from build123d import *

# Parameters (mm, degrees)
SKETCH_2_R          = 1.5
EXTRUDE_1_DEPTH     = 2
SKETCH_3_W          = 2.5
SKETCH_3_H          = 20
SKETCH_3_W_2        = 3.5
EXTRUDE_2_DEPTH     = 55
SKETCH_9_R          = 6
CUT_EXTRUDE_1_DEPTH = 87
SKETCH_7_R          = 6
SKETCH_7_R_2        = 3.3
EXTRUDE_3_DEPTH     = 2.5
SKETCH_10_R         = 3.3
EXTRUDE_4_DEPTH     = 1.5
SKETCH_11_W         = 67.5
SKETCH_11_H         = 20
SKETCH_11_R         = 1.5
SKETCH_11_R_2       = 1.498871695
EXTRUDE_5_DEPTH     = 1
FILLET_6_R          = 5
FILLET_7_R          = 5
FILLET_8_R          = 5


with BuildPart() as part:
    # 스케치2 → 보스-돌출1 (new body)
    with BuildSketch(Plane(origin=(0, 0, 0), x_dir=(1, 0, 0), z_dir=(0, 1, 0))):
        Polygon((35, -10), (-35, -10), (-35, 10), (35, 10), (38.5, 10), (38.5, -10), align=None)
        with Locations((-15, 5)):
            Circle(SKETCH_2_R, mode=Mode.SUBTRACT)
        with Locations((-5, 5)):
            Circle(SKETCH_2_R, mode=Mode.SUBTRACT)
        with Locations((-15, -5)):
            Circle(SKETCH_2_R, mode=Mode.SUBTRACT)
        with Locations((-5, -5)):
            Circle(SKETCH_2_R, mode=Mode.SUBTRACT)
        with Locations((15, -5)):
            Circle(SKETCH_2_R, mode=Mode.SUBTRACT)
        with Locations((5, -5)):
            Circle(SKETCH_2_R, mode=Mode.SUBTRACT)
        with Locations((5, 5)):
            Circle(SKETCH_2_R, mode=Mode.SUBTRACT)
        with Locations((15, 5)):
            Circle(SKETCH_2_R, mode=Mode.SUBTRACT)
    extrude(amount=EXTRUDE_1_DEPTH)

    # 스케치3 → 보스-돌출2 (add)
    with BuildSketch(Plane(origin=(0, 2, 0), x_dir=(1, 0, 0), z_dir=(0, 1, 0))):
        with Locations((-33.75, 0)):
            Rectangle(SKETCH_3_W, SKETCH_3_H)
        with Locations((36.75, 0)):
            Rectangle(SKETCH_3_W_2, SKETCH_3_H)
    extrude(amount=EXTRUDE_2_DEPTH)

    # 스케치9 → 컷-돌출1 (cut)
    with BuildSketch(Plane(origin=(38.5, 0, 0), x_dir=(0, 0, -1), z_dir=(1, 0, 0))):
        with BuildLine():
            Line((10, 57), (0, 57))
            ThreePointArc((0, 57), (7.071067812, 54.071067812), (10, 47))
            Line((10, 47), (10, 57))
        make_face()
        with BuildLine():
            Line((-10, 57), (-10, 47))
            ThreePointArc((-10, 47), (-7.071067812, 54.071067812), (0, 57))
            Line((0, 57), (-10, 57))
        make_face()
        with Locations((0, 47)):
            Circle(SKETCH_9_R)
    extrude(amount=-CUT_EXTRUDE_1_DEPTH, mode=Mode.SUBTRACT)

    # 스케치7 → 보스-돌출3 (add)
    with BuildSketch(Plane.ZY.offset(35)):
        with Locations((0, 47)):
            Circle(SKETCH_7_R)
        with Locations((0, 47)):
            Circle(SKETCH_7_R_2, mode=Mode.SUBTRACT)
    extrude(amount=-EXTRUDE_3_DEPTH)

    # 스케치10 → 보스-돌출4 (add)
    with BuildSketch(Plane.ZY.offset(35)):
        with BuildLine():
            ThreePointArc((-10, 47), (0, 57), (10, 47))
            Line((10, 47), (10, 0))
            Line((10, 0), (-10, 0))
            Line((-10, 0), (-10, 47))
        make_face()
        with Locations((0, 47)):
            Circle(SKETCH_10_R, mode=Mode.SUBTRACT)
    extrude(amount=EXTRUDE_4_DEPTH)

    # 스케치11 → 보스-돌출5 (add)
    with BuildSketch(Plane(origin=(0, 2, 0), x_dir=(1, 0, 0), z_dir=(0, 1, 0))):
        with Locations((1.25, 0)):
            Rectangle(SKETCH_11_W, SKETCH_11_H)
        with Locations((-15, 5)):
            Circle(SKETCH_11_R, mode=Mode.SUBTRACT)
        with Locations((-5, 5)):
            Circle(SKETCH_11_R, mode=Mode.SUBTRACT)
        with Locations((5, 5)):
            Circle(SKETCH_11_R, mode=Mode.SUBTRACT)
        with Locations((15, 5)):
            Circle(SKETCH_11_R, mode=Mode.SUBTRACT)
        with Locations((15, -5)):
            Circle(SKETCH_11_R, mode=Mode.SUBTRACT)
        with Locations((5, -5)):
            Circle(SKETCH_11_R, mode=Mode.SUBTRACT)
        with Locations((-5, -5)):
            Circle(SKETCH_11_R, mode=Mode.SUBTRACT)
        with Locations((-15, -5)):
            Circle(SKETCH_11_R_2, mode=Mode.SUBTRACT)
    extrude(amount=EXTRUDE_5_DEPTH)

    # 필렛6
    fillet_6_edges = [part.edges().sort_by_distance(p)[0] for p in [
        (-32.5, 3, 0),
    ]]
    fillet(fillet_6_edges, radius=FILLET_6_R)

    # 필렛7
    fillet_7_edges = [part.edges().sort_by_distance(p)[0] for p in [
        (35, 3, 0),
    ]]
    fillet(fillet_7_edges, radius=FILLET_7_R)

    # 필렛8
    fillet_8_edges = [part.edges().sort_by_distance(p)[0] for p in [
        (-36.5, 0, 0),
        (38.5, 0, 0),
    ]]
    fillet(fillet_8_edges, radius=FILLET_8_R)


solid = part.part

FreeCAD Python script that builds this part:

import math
import FreeCAD as App
import Part
import Sketcher
Q = App.Units.Quantity


def edges_at(feature, points):
    """Names of the edges that pass closest to the given points."""
    edges = feature.Shape.Edges
    near = lambda p: min(range(len(edges)), key=lambda i: edges[i].distToShape(Part.Vertex(*p))[0])
    return sorted({f"Edge{near(p) + 1}" for p in points})


def add_polygon(sketch, points):
    """Adds a closed chain of lines whose ends are joined by coincident constraints."""
    first, n = sketch.GeometryCount, len(points)
    for a, b in zip(points, points[1:] + points[:1]):
        sketch.addGeometry(Part.LineSegment(App.Vector(*a, 0), App.Vector(*b, 0)), False)
    for i in range(n):
        sketch.addConstraint(Sketcher.Constraint("Coincident", first + i, 2, first + (i + 1) % n, 1))

doc = App.newDocument("Part")
body = doc.addObject("PartDesign::Body", "Body")

# Sketch on XZ plane
sketch1 = body.newObject("Sketcher::SketchObject", "Sketch")
sketch1.AttachmentSupport = (doc.getObject("XZ_Plane"), [""])
sketch1.MapMode = "FlatFace"
add_polygon(sketch1, [(-35, 10), (38.5, 10), (38.5, -10), (-35, -10)])  # lines 0-3
sketch1.addGeometry(Part.Circle(App.Vector(15, 5, 0), App.Vector(0, 0, 1), 1.5), False)  # 4
sketch1.addGeometry(Part.Circle(App.Vector(5, 5, 0), App.Vector(0, 0, 1), 1.5), False)  # 5
sketch1.addGeometry(Part.Circle(App.Vector(-5, 5, 0), App.Vector(0, 0, 1), 1.5), False)  # 6
sketch1.addGeometry(Part.Circle(App.Vector(-15, 5, 0), App.Vector(0, 0, 1), 1.5), False)  # 7
sketch1.addGeometry(Part.Circle(App.Vector(15, -5, 0), App.Vector(0, 0, 1), 1.5), False)  # 8
sketch1.addGeometry(Part.Circle(App.Vector(5, -5, 0), App.Vector(0, 0, 1), 1.5), False)  # 9
sketch1.addGeometry(Part.Circle(App.Vector(-5, -5, 0), App.Vector(0, 0, 1), 1.5), False)  # 10
sketch1.addGeometry(Part.Circle(App.Vector(-15, -5, 0), App.Vector(0, 0, 1), 1.5), False)  # 11
sketch1.addConstraint(Sketcher.Constraint("Horizontal", 0))
sketch1.addConstraint(Sketcher.Constraint("Vertical", 1))
sketch1.addConstraint(Sketcher.Constraint("Horizontal", 2))
sketch1.addConstraint(Sketcher.Constraint("Vertical", 3))
sketch1.addConstraint(Sketcher.Constraint("Equal", 4, 5))
sketch1.addConstraint(Sketcher.Constraint("Equal", 5, 6))
sketch1.addConstraint(Sketcher.Constraint("Equal", 6, 7))
sketch1.addConstraint(Sketcher.Constraint("Equal", 7, 8))
sketch1.addConstraint(Sketcher.Constraint("Equal", 8, 9))
sketch1.addConstraint(Sketcher.Constraint("Equal", 9, 10))
sketch1.addConstraint(Sketcher.Constraint("Equal", 10, 11))
sketch1.addConstraint(Sketcher.Constraint("Symmetric", 7, 3, 8, 3, -1, 1))
sketch1.addConstraint(Sketcher.Constraint("Symmetric", 6, 3, 9, 3, -1, 1))
sketch1.addConstraint(Sketcher.Constraint("Symmetric", 5, 3, 10, 3, -1, 1))
sketch1.addConstraint(Sketcher.Constraint("Symmetric", 4, 3, 11, 3, -1, 1))
sketch1.addConstraint(Sketcher.Constraint("Symmetric", 5, 3, 6, 3, -2))
sketch1.addConstraint(Sketcher.Constraint("Symmetric", 4, 3, 7, 3, -2))
sketch1.addConstraint(Sketcher.Constraint("Horizontal", 4, 3, 5, 3))
sketch1.addConstraint(Sketcher.Constraint("Diameter", 4, Q("3 mm")))
sketch1.addConstraint(Sketcher.Constraint("DistanceY", 1, 2, 1, 1, Q("20 mm")))
sketch1.addConstraint(Sketcher.Constraint("DistanceX", 0, 1, 0, 2, Q("73.5 mm")))
sketch1.addConstraint(Sketcher.Constraint("DistanceX", -1, 1, 4, 3, Q("15 mm")))
sketch1.addConstraint(Sketcher.Constraint("DistanceY", -1, 1, 4, 3, Q("5 mm")))
sketch1.addConstraint(Sketcher.Constraint("DistanceX", -1, 1, 5, 3, Q("5 mm")))
sketch1.addConstraint(Sketcher.Constraint("DistanceY", -1, 1, 0, 2, Q("10 mm")))
sketch1.addConstraint(Sketcher.Constraint("DistanceX", 2, 2, -1, 1, Q("35 mm")))
pad1 = body.newObject("PartDesign::Pad", "Pad")
pad1.Profile = sketch1
pad1.Length = 2
pad1.Reversed = True

# Sketch on XZ plane
sketch2 = body.newObject("Sketcher::SketchObject", "Sketch001")
sketch2.AttachmentSupport = (doc.getObject("XZ_Plane"), [""])
sketch2.MapMode = "FlatFace"
sketch2.AttachmentOffset = App.Placement(App.Vector(0, 0, -2), App.Rotation())
add_polygon(sketch2, [(-35, -10), (-35, 10), (-32.5, 10), (-32.5, -10)])  # lines 0-3
add_polygon(sketch2, [(35, -10), (35, 10), (38.5, 10), (38.5, -10)])  # lines 4-7
sketch2.addConstraint(Sketcher.Constraint("Vertical", 0))
sketch2.addConstraint(Sketcher.Constraint("Horizontal", 1))
sketch2.addConstraint(Sketcher.Constraint("Vertical", 2))
sketch2.addConstraint(Sketcher.Constraint("Horizontal", 3))
sketch2.addConstraint(Sketcher.Constraint("Vertical", 4))
sketch2.addConstraint(Sketcher.Constraint("Horizontal", 5))
sketch2.addConstraint(Sketcher.Constraint("Vertical", 6))
sketch2.addConstraint(Sketcher.Constraint("Horizontal", 7))
sketch2.addConstraint(Sketcher.Constraint("Symmetric", 3, 2, 4, 2, -1, 1))
sketch2.addConstraint(Sketcher.Constraint("Horizontal", 1, 2, 4, 2))
sketch2.addConstraint(Sketcher.Constraint("Horizontal", 3, 2, 6, 2))
sketch2.addConstraint(Sketcher.Constraint("DistanceY", 0, 1, 0, 2, Q("20 mm")))
sketch2.addConstraint(Sketcher.Constraint("DistanceX", 1, 1, 1, 2, Q("2.5 mm")))
sketch2.addConstraint(Sketcher.Constraint("DistanceX", 5, 1, 5, 2, Q("3.5 mm")))
sketch2.addConstraint(Sketcher.Constraint("DistanceX", 0, 2, -1, 1, Q("35 mm")))
pad2 = body.newObject("PartDesign::Pad", "Pad001")
pad2.Profile = sketch2
pad2.Length = 55
pad2.Reversed = True

# Sketch on YZ plane
sketch3 = body.newObject("Sketcher::SketchObject", "Sketch002")
sketch3.AttachmentSupport = (doc.getObject("YZ_Plane"), [""])
sketch3.MapMode = "FlatFace"
sketch3.AttachmentOffset = App.Placement(App.Vector(0, 0, 38.5), App.Rotation())
sketch3.addGeometry(Part.LineSegment(App.Vector(57, -10, 0), App.Vector(57, 0, 0)), False)
sketch3.addGeometry(Part.ArcOfCircle(Part.Circle(App.Vector(47, 0, 0), App.Vector(0, 0, 1), 10), math.radians(-90), math.radians(0)), False)
sketch3.addGeometry(Part.LineSegment(App.Vector(47, -10, 0), App.Vector(57, -10, 0)), False)
sketch3.addGeometry(Part.LineSegment(App.Vector(57, 10, 0), App.Vector(47, 10, 0)), False)
sketch3.addGeometry(Part.ArcOfCircle(Part.Circle(App.Vector(47, 0, 0), App.Vector(0, 0, 1), 10), math.radians(0), math.radians(90)), False)
sketch3.addGeometry(Part.LineSegment(App.Vector(57, 0, 0), App.Vector(57, 10, 0)), False)
sketch3.addGeometry(Part.Circle(App.Vector(47, 0, 0), App.Vector(0, 0, 1), 6), False)
sketch3.addConstraint(Sketcher.Constraint("Tangent", 0, 2, 1, 2))
sketch3.addConstraint(Sketcher.Constraint("Tangent", 1, 1, 2, 1))
sketch3.addConstraint(Sketcher.Constraint("Coincident", 2, 2, 0, 1))
sketch3.addConstraint(Sketcher.Constraint("Tangent", 3, 2, 4, 2))
sketch3.addConstraint(Sketcher.Constraint("Tangent", 4, 1, 5, 1))
sketch3.addConstraint(Sketcher.Constraint("Coincident", 5, 2, 3, 1))
sketch3.addConstraint(Sketcher.Constraint("Vertical", 0))
sketch3.addConstraint(Sketcher.Constraint("Horizontal", 2))
sketch3.addConstraint(Sketcher.Constraint("Horizontal", 3))
sketch3.addConstraint(Sketcher.Constraint("Vertical", 5))
sketch3.addConstraint(Sketcher.Constraint("Coincident", 4, 3, 1, 3))
sketch3.addConstraint(Sketcher.Constraint("Coincident", 6, 3, 1, 3))
sketch3.addConstraint(Sketcher.Constraint("Equal", 1, 4))
sketch3.addConstraint(Sketcher.Constraint("PointOnObject", 1, 3, -1))
sketch3.addConstraint(Sketcher.Constraint("Diameter", 6, Q("12 mm")))
sketch3.addConstraint(Sketcher.Constraint("Radius", 1, Q("10 mm")))
sketch3.addConstraint(Sketcher.Constraint("DistanceX", -1, 1, 1, 3, Q("47 mm")))
pocket1 = body.newObject("PartDesign::Pocket", "Pocket")
pocket1.Profile = sketch3
pocket1.Length = 87

# Sketch on YZ plane
sketch4 = body.newObject("Sketcher::SketchObject", "Sketch003")
sketch4.AttachmentSupport = (doc.getObject("YZ_Plane"), [""])
sketch4.MapMode = "FlatFace"
sketch4.AttachmentOffset = App.Placement(App.Vector(0, 0, -35), App.Rotation())
sketch4.addGeometry(Part.Circle(App.Vector(47, 0, 0), App.Vector(0, 0, 1), 6), False)
sketch4.addGeometry(Part.Circle(App.Vector(47, 0, 0), App.Vector(0, 0, 1), 3.3), False)
sketch4.addConstraint(Sketcher.Constraint("Coincident", 1, 3, 0, 3))
sketch4.addConstraint(Sketcher.Constraint("PointOnObject", 0, 3, -1))
sketch4.addConstraint(Sketcher.Constraint("Diameter", 0, Q("12 mm")))
sketch4.addConstraint(Sketcher.Constraint("Diameter", 1, Q("6.6 mm")))
sketch4.addConstraint(Sketcher.Constraint("DistanceX", -1, 1, 0, 3, Q("47 mm")))
pad3 = body.newObject("PartDesign::Pad", "Pad002")
pad3.Profile = sketch4
pad3.Length = 2.5

# Sketch on YZ plane
sketch5 = body.newObject("Sketcher::SketchObject", "Sketch004")
sketch5.AttachmentSupport = (doc.getObject("YZ_Plane"), [""])
sketch5.MapMode = "FlatFace"
sketch5.AttachmentOffset = App.Placement(App.Vector(0, 0, -35), App.Rotation())
sketch5.addGeometry(Part.ArcOfCircle(Part.Circle(App.Vector(47, 0, 0), App.Vector(0, 0, 1), 10), math.radians(-90), math.radians(90)), False)
sketch5.addGeometry(Part.LineSegment(App.Vector(47, -10, 0), App.Vector(0, -10, 0)), False)
sketch5.addGeometry(Part.LineSegment(App.Vector(0, -10, 0), App.Vector(0, 10, 0)), False)
sketch5.addGeometry(Part.LineSegment(App.Vector(0, 10, 0), App.Vector(47, 10, 0)), False)
sketch5.addGeometry(Part.Circle(App.Vector(47, 0, 0), App.Vector(0, 0, 1), 3.3), False)
sketch5.addConstraint(Sketcher.Constraint("Tangent", 0, 1, 1, 1))
sketch5.addConstraint(Sketcher.Constraint("Coincident", 1, 2, 2, 1))
sketch5.addConstraint(Sketcher.Constraint("Coincident", 2, 2, 3, 1))
sketch5.addConstraint(Sketcher.Constraint("Tangent", 3, 2, 0, 2))
sketch5.addConstraint(Sketcher.Constraint("Horizontal", 1))
sketch5.addConstraint(Sketcher.Constraint("Vertical", 2))
sketch5.addConstraint(Sketcher.Constraint("Horizontal", 3))
sketch5.addConstraint(Sketcher.Constraint("Coincident", 4, 3, 0, 3))
sketch5.addConstraint(Sketcher.Constraint("Symmetric", 1, 2, 2, 2, -1, 1))
sketch5.addConstraint(Sketcher.Constraint("Radius", 0, Q("10 mm")))
sketch5.addConstraint(Sketcher.Constraint("Diameter", 4, Q("6.6 mm")))
sketch5.addConstraint(Sketcher.Constraint("DistanceX", 1, 2, 1, 1, Q("47 mm")))
pad4 = body.newObject("PartDesign::Pad", "Pad003")
pad4.Profile = sketch5
pad4.Length = 1.5
pad4.Reversed = True

# Sketch on XZ plane
sketch6 = body.newObject("Sketcher::SketchObject", "Sketch005")
sketch6.AttachmentSupport = (doc.getObject("XZ_Plane"), [""])
sketch6.MapMode = "FlatFace"
sketch6.AttachmentOffset = App.Placement(App.Vector(0, 0, -2), App.Rotation())
add_polygon(sketch6, [(-32.5, -10), (-32.5, 10), (35, 10), (35, -10)])  # lines 0-3
sketch6.addGeometry(Part.Circle(App.Vector(-15, 5, 0), App.Vector(0, 0, 1), 1.5), False)  # 4
sketch6.addGeometry(Part.Circle(App.Vector(-5, 5, 0), App.Vector(0, 0, 1), 1.5), False)  # 5
sketch6.addGeometry(Part.Circle(App.Vector(5, 5, 0), App.Vector(0, 0, 1), 1.5), False)  # 6
sketch6.addGeometry(Part.Circle(App.Vector(15, 5, 0), App.Vector(0, 0, 1), 1.5), False)  # 7
sketch6.addGeometry(Part.Circle(App.Vector(-15, -5, 0), App.Vector(0, 0, 1), 1.5), False)  # 8
sketch6.addGeometry(Part.Circle(App.Vector(-5, -5, 0), App.Vector(0, 0, 1), 1.5), False)  # 9
sketch6.addGeometry(Part.Circle(App.Vector(5, -5, 0), App.Vector(0, 0, 1), 1.5), False)  # 10
sketch6.addGeometry(Part.Circle(App.Vector(15, -5, 0), App.Vector(0, 0, 1), 1.5), False)  # 11
sketch6.addConstraint(Sketcher.Constraint("Vertical", 0))
sketch6.addConstraint(Sketcher.Constraint("Horizontal", 1))
sketch6.addConstraint(Sketcher.Constraint("Vertical", 2))
sketch6.addConstraint(Sketcher.Constraint("Horizontal", 3))
sketch6.addConstraint(Sketcher.Constraint("Equal", 5, 6))
sketch6.addConstraint(Sketcher.Constraint("Equal", 6, 7))
sketch6.addConstraint(Sketcher.Constraint("Equal", 7, 8))
sketch6.addConstraint(Sketcher.Constraint("Equal", 8, 9))
sketch6.addConstraint(Sketcher.Constraint("Equal", 9, 10))
sketch6.addConstraint(Sketcher.Constraint("Equal", 10, 11))
sketch6.addConstraint(Sketcher.Constraint("Symmetric", 7, 3, 8, 3, -1, 1))
sketch6.addConstraint(Sketcher.Constraint("Symmetric", 6, 3, 9, 3, -1, 1))
sketch6.addConstraint(Sketcher.Constraint("Symmetric", 5, 3, 10, 3, -1, 1))
sketch6.addConstraint(Sketcher.Constraint("Symmetric", 4, 3, 11, 3, -1, 1))
sketch6.addConstraint(Sketcher.Constraint("Symmetric", 5, 3, 6, 3, -2))
sketch6.addConstraint(Sketcher.Constraint("Symmetric", 4, 3, 7, 3, -2))
sketch6.addConstraint(Sketcher.Constraint("Horizontal", 4, 3, 5, 3))
sketch6.addConstraint(Sketcher.Constraint("Diameter", 5, Q("3 mm")))
sketch6.addConstraint(Sketcher.Constraint("DistanceY", 0, 1, 0, 2, Q("20 mm")))
sketch6.addConstraint(Sketcher.Constraint("DistanceX", 1, 1, 1, 2, Q("67.5 mm")))
sketch6.addConstraint(Sketcher.Constraint("DistanceX", 4, 3, -1, 1, Q("15 mm")))
sketch6.addConstraint(Sketcher.Constraint("DistanceY", -1, 1, 4, 3, Q("5 mm")))
sketch6.addConstraint(Sketcher.Constraint("DistanceX", 5, 3, -1, 1, Q("5 mm")))
sketch6.addConstraint(Sketcher.Constraint("DistanceY", -1, 1, 0, 2, Q("10 mm")))
sketch6.addConstraint(Sketcher.Constraint("DistanceX", -1, 1, 1, 2, Q("35 mm")))
sketch6.addConstraint(Sketcher.Constraint("Diameter", 4, Q("2.997743 mm")))
pad5 = body.newObject("PartDesign::Pad", "Pad004")
pad5.Profile = sketch6
pad5.Length = 1
pad5.Reversed = True
doc.recompute()

fillet = body.newObject("PartDesign::Fillet", "Fillet")
fillet.Base = (pad5, edges_at(pad5, [(-32.5, 3, 0)]))
fillet.Radius = 5
doc.recompute()

fillet2 = body.newObject("PartDesign::Fillet", "Fillet001")
fillet2.Base = (fillet, edges_at(fillet, [(35, 3, 0)]))
fillet2.Radius = 5
doc.recompute()

fillet3 = body.newObject("PartDesign::Fillet", "Fillet002")
fillet3.Base = (fillet2, edges_at(fillet2, [(-36.5, 0, 0), (38.5, 0, 0)]))
fillet3.Radius = 5

doc.recompute()
